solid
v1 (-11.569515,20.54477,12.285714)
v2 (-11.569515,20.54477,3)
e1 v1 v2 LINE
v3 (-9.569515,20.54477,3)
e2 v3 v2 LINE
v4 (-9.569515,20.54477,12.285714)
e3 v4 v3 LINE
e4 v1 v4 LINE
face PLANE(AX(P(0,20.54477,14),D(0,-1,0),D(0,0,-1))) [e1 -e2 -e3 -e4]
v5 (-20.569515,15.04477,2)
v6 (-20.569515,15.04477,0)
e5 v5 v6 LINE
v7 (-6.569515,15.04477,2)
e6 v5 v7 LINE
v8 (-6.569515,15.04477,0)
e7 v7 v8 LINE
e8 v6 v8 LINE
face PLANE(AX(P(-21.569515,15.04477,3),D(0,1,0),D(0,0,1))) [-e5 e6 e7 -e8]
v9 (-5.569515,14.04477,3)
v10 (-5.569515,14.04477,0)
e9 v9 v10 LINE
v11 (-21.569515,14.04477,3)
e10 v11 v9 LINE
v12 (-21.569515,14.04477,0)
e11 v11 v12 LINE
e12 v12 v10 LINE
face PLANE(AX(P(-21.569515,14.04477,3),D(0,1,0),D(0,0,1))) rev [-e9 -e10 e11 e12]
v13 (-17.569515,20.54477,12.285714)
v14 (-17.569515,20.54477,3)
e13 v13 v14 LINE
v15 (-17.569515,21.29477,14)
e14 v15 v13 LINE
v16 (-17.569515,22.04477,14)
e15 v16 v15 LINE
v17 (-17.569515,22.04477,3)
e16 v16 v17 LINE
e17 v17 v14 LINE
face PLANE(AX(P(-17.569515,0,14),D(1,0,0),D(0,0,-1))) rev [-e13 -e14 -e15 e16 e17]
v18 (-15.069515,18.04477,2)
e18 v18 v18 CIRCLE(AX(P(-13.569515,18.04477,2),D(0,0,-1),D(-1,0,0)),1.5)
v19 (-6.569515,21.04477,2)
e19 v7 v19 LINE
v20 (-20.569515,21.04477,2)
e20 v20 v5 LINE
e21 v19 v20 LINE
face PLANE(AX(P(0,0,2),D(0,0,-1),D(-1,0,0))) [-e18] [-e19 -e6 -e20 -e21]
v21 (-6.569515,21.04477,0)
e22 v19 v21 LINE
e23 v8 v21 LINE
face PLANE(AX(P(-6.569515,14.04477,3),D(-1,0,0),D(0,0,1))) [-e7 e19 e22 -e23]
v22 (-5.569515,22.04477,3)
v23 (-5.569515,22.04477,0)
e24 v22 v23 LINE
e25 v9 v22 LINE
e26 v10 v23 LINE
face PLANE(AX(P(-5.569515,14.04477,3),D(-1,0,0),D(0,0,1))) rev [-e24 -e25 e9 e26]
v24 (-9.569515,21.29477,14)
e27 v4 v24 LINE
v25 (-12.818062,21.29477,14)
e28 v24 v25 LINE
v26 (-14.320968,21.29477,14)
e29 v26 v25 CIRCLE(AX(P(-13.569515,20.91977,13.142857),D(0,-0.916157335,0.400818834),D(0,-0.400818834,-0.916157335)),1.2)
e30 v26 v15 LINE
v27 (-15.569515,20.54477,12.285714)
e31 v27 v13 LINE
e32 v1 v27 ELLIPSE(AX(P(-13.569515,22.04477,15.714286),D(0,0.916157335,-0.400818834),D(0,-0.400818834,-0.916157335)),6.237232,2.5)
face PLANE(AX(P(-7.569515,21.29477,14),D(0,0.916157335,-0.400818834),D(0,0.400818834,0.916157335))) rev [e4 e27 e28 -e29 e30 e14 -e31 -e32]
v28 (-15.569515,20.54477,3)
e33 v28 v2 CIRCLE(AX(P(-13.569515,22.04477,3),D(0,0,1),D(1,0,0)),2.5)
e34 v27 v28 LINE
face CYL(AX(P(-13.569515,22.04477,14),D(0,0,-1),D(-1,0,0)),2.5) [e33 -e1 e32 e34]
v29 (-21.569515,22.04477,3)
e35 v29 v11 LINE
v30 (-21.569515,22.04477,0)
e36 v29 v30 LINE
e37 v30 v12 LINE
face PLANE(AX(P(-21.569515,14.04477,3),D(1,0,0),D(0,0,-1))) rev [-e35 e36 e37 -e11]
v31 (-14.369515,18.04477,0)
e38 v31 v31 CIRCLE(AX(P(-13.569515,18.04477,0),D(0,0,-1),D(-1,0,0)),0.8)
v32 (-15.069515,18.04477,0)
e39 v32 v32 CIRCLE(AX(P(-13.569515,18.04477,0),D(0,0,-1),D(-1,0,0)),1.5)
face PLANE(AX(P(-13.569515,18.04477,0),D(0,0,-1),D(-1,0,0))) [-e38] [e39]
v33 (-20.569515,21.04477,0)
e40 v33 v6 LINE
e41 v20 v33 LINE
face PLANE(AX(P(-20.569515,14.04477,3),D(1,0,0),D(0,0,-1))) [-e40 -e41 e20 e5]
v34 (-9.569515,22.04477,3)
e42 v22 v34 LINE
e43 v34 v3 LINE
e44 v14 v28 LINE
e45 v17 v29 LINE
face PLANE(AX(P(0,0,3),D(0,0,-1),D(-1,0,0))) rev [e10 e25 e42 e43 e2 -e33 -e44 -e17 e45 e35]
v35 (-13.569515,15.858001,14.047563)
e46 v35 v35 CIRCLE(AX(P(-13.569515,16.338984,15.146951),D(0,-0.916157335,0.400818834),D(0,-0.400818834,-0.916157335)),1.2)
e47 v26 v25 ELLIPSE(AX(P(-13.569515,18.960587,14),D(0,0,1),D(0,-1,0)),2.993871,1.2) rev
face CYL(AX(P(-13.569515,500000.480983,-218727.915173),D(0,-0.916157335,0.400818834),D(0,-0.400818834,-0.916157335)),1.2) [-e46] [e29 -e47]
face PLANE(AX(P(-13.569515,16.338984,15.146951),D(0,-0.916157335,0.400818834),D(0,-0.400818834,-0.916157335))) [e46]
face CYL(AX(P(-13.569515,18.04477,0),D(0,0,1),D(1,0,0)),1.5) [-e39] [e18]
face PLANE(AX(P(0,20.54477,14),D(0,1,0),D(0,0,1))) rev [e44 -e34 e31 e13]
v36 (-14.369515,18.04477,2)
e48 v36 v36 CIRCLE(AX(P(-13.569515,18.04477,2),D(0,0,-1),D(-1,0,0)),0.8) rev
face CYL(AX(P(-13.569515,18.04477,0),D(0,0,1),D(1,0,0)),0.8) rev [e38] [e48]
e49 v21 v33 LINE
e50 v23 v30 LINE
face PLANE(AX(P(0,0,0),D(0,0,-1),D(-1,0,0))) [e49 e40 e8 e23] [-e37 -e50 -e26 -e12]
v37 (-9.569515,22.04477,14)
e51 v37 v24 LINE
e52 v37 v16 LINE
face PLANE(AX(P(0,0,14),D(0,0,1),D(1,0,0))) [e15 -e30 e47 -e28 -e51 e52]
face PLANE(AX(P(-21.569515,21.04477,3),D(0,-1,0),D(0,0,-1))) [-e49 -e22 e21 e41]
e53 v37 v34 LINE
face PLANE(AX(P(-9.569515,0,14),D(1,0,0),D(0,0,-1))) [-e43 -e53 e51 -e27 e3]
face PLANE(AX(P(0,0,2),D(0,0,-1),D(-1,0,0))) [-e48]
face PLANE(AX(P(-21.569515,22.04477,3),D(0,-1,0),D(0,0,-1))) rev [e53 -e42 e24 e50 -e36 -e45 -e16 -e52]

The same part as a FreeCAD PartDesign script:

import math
import FreeCAD as App
import Part
import Sketcher
from FreeCAD import Vector


def faces_at(feature, points):
    """Names of the faces that lie closest to the given points."""
    faces = feature.Shape.Faces
    near = lambda p: min(range(len(faces)), key=lambda i: faces[i].distToShape(Part.Vertex(*p))[0])
    return sorted({f"Face{near(p) + 1}" for p in points})


def add_polygon(sketch, points):
    """Adds a closed chain of lines whose ends are joined by coincident constraints."""
    first, n = sketch.GeometryCount, len(points)
    for a, b in zip(points, points[1:] + points[:1]):
        sketch.addGeometry(Part.LineSegment(App.Vector(*a, 0), App.Vector(*b, 0)), False)
    for i in range(n):
        sketch.addConstraint(Sketcher.Constraint("Coincident", first + i, 2, first + (i + 1) % n, 1))

doc = App.newDocument("Part")
params = doc.addObject("Spreadsheet::Sheet", "Params")
for row, (alias, value) in enumerate([
    ("sketch1_width", "16 mm"),
    ("sketch1_height", "8 mm"),
    ("pad1_length", "3 mm"),
    ("thickness_wall", "1 mm"),
    ("sketch2_diameter", "3 mm"),
    ("sketch2_diameter2", "1.6 mm"),
    ("pad2_length", "2 mm"),
    ("sketch3_radius", "2.5 mm"),
    ("sketch3_width", "2 mm"),
    ("sketch3_width2", "8 mm"),
    ("pad3_length", "11 mm"),
    ("sketch4_height", "4 mm"),
    ("sketch4_width", "1.75 mm"),
    ("pocket1_length", "10 mm"),
    ("sketch5_diameter", "2.4 mm"),
    ("pad4_length", "5 mm"),
    ("sketch6_diameter", "2.4 mm"),
], start=1):
    params.set(f"A{row}", alias)
    params.set(f"B{row}", "=" + value)
    params.setAlias(f"B{row}", alias)

body = doc.addObject("PartDesign::Body", "Body")

# Sketch on XY plane
sketch1 = doc.addObject("Sketcher::SketchObject", "Sketch")
body.addObject(sketch1)
sketch1.AttachmentSupport = (doc.XY_Plane, [""])
sketch1.MapMode = "FlatFace"
add_polygon(sketch1, [(-22, 22), (-22, 14), (-6, 14), (-6, 22)])  # lines 0-3
sketch1.addConstraint(Sketcher.Constraint("Vertical", 0))
sketch1.addConstraint(Sketcher.Constraint("Horizontal", 1))
sketch1.addConstraint(Sketcher.Constraint("Vertical", 2))
sketch1.addConstraint(Sketcher.Constraint("Horizontal", 3))
sketch1.addConstraint(Sketcher.Constraint("DistanceX", 1, 1, 1, 2, 16.0))
sketch1.addConstraint(Sketcher.Constraint("DistanceY", 0, 2, 0, 1, 8.0))
sketch1.addConstraint(Sketcher.Constraint("DistanceY", -1, 1, 0, 2, 14.04477))
sketch1.addConstraint(Sketcher.Constraint("DistanceX", 0, 2, -1, 1, 21.569515))
sketch1.setExpression("Constraints[8]", "Params.sketch1_width")
sketch1.setExpression("Constraints[9]", "Params.sketch1_height")
pad1 = doc.addObject("PartDesign::Pad", "Pad")
body.addObject(pad1)
pad1.Profile = sketch1
pad1.setExpression("Length", "Params.pad1_length")
doc.recompute()

thickness = doc.addObject("PartDesign::Thickness", "Thickness")
body.addObject(thickness)
thickness.Base = (pad1, faces_at(pad1, [(-13.57, 18.045, 0)]))
thickness.setExpression("Value", "Params.thickness_wall")
thickness.Reversed = True
thickness.Join = "Intersection"

# Sketch on XY plane
sketch2 = doc.addObject("Sketcher::SketchObject", "Sketch001")
body.addObject(sketch2)
sketch2.AttachmentSupport = (doc.XY_Plane, [""])
sketch2.MapMode = "FlatFace"
sketch2.AttachmentOffset = App.Placement(Vector(0, 0, 2), App.Rotation())
sketch2.addGeometry(Part.Circle(Vector(-13.6, 18, 0), Vector(0, 0, 1), 1.5), False)
sketch2.addGeometry(Part.Circle(Vector(-13.6, 18, 0), Vector(0, 0, 1), 0.8), False)
sketch2.addConstraint(Sketcher.Constraint("Coincident", 1, 3, 0, 3))
sketch2.addConstraint(Sketcher.Constraint("Diameter", 0, 3.0))
sketch2.addConstraint(Sketcher.Constraint("Diameter", 1, 1.6))
sketch2.addConstraint(Sketcher.Constraint("DistanceY", -1, 1, 0, 3, 18.04477))
sketch2.addConstraint(Sketcher.Constraint("DistanceX", 0, 3, -1, 1, 13.569515))
sketch2.setExpression("Constraints[1]", "Params.sketch2_diameter")
sketch2.setExpression("Constraints[2]", "Params.sketch2_diameter2")
pad2 = doc.addObject("PartDesign::Pad", "Pad001")
body.addObject(pad2)
pad2.Profile = sketch2
pad2.setExpression("Length", "Params.pad2_length")
pad2.Reversed = True

# Sketch on XY plane
sketch3 = doc.addObject("Sketcher::SketchObject", "Sketch002")
body.addObject(sketch3)
sketch3.AttachmentSupport = (doc.XY_Plane, [""])
sketch3.MapMode = "FlatFace"
sketch3.AttachmentOffset = App.Placement(Vector(0, 0, 3), App.Rotation())
sketch3.addGeometry(Part.LineSegment(Vector(-17.6, 22, 0), Vector(-17.6, 20.5, 0)), False)
sketch3.addGeometry(Part.LineSegment(Vector(-17.6, 20.5, 0), Vector(-15.6, 20.5, 0)), False)
sketch3.addGeometry(Part.ArcOfCircle(Part.Circle(Vector(-13.6, 22, 0), Vector(0, 0, 1), 2.5), math.radians(-143), math.radians(-37)), False)
sketch3.addGeometry(Part.LineSegment(Vector(-11.6, 20.5, 0), Vector(-9.6, 20.5, 0)), False)
sketch3.addGeometry(Part.LineSegment(Vector(-9.6, 20.5, 0), Vector(-9.6, 22, 0)), False)
sketch3.addGeometry(Part.LineSegment(Vector(-9.6, 22, 0), Vector(-17.6, 22, 0)), False)
sketch3.addConstraint(Sketcher.Constraint("Coincident", 0, 2, 1, 1))
sketch3.addConstraint(Sketcher.Constraint("Coincident", 1, 2, 2, 1))
sketch3.addConstraint(Sketcher.Constraint("Coincident", 2, 2, 3, 1))
sketch3.addConstraint(Sketcher.Constraint("Coincident", 3, 2, 4, 1))
sketch3.addConstraint(Sketcher.Constraint("Coincident", 4, 2, 5, 1))
sketch3.addConstraint(Sketcher.Constraint("Coincident", 5, 2, 0, 1))
sketch3.addConstraint(Sketcher.Constraint("Vertical", 0))
sketch3.addConstraint(Sketcher.Constraint("Horizontal", 1))
sketch3.addConstraint(Sketcher.Constraint("Horizontal", 3))
sketch3.addConstraint(Sketcher.Constraint("Vertical", 4))
sketch3.addConstraint(Sketcher.Constraint("Horizontal", 5))
sketch3.addConstraint(Sketcher.Constraint("Horizontal", 1, 2, 2, 2))
sketch3.addConstraint(Sketcher.Constraint("Horizontal", 2, 3, 4, 2))
sketch3.addConstraint(Sketcher.Constraint("Equal", 1, 3))
sketch3.addConstraint(Sketcher.Constraint("Radius", 2, 2.5))
sketch3.addConstraint(Sketcher.Constraint("DistanceX", 1, 1, 1, 2, 2.0))
sketch3.addConstraint(Sketcher.Constraint("DistanceX", 5, 2, 5, 1, 8.0))
sketch3.addConstraint(Sketcher.Constraint("DistanceY", -1, 1, 2, 3, 22.04477))
sketch3.addConstraint(Sketcher.Constraint("DistanceX", 2, 3, -1, 1, 13.569515))
sketch3.setExpression("Constraints[14]", "Params.sketch3_radius")
sketch3.setExpression("Constraints[15]", "Params.sketch3_width")
sketch3.setExpression("Constraints[16]", "Params.sketch3_width2")
pad3 = doc.addObject("PartDesign::Pad", "Pad002")
body.addObject(pad3)
pad3.Profile = sketch3
pad3.setExpression("Length", "Params.pad3_length")

# Sketch on YZ plane
sketch4 = doc.addObject("Sketcher::SketchObject", "Sketch003")
body.addObject(sketch4)
sketch4.AttachmentSupport = (doc.YZ_Plane, [""])
sketch4.MapMode = "FlatFace"
sketch4.AttachmentOffset = App.Placement(Vector(0, 0, -17.569515), App.Rotation())
add_polygon(sketch4, [(19.5, 14), (21.3, 14), (19.5, 10)])  # lines 0-2
sketch4.addConstraint(Sketcher.Constraint("Horizontal", 0))
sketch4.addConstraint(Sketcher.Constraint("Vertical", 2))
sketch4.addConstraint(Sketcher.Constraint("DistanceY", 2, 1, 2, 2, 4.0))
sketch4.addConstraint(Sketcher.Constraint("DistanceY", -1, 1, 0, 2, 14.0))
sketch4.addConstraint(Sketcher.Constraint("DistanceX", 0, 1, 0, 2, 1.75))
sketch4.addConstraint(Sketcher.Constraint("DistanceX", -1, 1, 0, 2, 21.29477))
sketch4.setExpression("Constraints[5]", "Params.sketch4_height")
sketch4.setExpression("Constraints[7]", "Params.sketch4_width")
pocket1 = doc.addObject("PartDesign::Pocket", "Pocket")
body.addObject(pocket1)
pocket1.Profile = sketch4
pocket1.setExpression("Length", "Params.pocket1_length")
pocket1.Reversed = True

# Sketch on an angled plane
sketch5 = doc.addObject("Sketcher::SketchObject", "Sketch004")
body.addObject(sketch5)
sketch5.Placement = App.Placement(Vector(0, 12.73266, -5.570539), App.Rotation(Vector(-1, 0, 0), Vector(0, -0.400818834, -0.916157335), Vector(0, -0.916157335, 0.400818834), "ZXY"))
sketch5.addGeometry(Part.Circle(Vector(13.6, -20.4, 0), Vector(0, 0, 1), 1.2), False)
sketch5.addConstraint(Sketcher.Constraint("Diameter", 0, 2.4))
sketch5.addConstraint(Sketcher.Constraint("DistanceX", -1, 1, 0, 3, 13.569515))
sketch5.addConstraint(Sketcher.Constraint("DistanceY", 0, 3, -1, 1, 20.425963))
sketch5.setExpression("Constraints[0]", "Params.sketch5_diameter")
pad4 = doc.addObject("PartDesign::Pad", "Pad003")
body.addObject(pad4)
pad4.Profile = sketch5
pad4.setExpression("Length", "Params.pad4_length")

# Sketch on an angled plane
sketch6 = doc.addObject("Sketcher::SketchObject", "Sketch005")
body.addObject(sketch6)
sketch6.Placement = App.Placement(Vector(0, 12.73266, -5.570539), App.Rotation(Vector(-1, 0, 0), Vector(0, -0.400818834, -0.916157335), Vector(0, -0.916157335, 0.400818834), "ZXY"))
sketch6.addGeometry(Part.Circle(Vector(13.6, -20.4, 0), Vector(0, 0, 1), 1.2), False)
sketch6.addConstraint(Sketcher.Constraint("Diameter", 0, 2.4))
sketch6.addConstraint(Sketcher.Constraint("DistanceX", -1, 1, 0, 3, 13.569515))
sketch6.addConstraint(Sketcher.Constraint("DistanceY", 0, 3, -1, 1, 20.425963))
sketch6.setExpression("Constraints[0]", "Params.sketch6_diameter")
pad5 = doc.addObject("PartDesign::Pad", "Pad004")
body.addObject(pad5)
pad5.Profile = sketch6
pad5.Type = "UpToFirst"
pad5.Reversed = True

doc.recompute()
